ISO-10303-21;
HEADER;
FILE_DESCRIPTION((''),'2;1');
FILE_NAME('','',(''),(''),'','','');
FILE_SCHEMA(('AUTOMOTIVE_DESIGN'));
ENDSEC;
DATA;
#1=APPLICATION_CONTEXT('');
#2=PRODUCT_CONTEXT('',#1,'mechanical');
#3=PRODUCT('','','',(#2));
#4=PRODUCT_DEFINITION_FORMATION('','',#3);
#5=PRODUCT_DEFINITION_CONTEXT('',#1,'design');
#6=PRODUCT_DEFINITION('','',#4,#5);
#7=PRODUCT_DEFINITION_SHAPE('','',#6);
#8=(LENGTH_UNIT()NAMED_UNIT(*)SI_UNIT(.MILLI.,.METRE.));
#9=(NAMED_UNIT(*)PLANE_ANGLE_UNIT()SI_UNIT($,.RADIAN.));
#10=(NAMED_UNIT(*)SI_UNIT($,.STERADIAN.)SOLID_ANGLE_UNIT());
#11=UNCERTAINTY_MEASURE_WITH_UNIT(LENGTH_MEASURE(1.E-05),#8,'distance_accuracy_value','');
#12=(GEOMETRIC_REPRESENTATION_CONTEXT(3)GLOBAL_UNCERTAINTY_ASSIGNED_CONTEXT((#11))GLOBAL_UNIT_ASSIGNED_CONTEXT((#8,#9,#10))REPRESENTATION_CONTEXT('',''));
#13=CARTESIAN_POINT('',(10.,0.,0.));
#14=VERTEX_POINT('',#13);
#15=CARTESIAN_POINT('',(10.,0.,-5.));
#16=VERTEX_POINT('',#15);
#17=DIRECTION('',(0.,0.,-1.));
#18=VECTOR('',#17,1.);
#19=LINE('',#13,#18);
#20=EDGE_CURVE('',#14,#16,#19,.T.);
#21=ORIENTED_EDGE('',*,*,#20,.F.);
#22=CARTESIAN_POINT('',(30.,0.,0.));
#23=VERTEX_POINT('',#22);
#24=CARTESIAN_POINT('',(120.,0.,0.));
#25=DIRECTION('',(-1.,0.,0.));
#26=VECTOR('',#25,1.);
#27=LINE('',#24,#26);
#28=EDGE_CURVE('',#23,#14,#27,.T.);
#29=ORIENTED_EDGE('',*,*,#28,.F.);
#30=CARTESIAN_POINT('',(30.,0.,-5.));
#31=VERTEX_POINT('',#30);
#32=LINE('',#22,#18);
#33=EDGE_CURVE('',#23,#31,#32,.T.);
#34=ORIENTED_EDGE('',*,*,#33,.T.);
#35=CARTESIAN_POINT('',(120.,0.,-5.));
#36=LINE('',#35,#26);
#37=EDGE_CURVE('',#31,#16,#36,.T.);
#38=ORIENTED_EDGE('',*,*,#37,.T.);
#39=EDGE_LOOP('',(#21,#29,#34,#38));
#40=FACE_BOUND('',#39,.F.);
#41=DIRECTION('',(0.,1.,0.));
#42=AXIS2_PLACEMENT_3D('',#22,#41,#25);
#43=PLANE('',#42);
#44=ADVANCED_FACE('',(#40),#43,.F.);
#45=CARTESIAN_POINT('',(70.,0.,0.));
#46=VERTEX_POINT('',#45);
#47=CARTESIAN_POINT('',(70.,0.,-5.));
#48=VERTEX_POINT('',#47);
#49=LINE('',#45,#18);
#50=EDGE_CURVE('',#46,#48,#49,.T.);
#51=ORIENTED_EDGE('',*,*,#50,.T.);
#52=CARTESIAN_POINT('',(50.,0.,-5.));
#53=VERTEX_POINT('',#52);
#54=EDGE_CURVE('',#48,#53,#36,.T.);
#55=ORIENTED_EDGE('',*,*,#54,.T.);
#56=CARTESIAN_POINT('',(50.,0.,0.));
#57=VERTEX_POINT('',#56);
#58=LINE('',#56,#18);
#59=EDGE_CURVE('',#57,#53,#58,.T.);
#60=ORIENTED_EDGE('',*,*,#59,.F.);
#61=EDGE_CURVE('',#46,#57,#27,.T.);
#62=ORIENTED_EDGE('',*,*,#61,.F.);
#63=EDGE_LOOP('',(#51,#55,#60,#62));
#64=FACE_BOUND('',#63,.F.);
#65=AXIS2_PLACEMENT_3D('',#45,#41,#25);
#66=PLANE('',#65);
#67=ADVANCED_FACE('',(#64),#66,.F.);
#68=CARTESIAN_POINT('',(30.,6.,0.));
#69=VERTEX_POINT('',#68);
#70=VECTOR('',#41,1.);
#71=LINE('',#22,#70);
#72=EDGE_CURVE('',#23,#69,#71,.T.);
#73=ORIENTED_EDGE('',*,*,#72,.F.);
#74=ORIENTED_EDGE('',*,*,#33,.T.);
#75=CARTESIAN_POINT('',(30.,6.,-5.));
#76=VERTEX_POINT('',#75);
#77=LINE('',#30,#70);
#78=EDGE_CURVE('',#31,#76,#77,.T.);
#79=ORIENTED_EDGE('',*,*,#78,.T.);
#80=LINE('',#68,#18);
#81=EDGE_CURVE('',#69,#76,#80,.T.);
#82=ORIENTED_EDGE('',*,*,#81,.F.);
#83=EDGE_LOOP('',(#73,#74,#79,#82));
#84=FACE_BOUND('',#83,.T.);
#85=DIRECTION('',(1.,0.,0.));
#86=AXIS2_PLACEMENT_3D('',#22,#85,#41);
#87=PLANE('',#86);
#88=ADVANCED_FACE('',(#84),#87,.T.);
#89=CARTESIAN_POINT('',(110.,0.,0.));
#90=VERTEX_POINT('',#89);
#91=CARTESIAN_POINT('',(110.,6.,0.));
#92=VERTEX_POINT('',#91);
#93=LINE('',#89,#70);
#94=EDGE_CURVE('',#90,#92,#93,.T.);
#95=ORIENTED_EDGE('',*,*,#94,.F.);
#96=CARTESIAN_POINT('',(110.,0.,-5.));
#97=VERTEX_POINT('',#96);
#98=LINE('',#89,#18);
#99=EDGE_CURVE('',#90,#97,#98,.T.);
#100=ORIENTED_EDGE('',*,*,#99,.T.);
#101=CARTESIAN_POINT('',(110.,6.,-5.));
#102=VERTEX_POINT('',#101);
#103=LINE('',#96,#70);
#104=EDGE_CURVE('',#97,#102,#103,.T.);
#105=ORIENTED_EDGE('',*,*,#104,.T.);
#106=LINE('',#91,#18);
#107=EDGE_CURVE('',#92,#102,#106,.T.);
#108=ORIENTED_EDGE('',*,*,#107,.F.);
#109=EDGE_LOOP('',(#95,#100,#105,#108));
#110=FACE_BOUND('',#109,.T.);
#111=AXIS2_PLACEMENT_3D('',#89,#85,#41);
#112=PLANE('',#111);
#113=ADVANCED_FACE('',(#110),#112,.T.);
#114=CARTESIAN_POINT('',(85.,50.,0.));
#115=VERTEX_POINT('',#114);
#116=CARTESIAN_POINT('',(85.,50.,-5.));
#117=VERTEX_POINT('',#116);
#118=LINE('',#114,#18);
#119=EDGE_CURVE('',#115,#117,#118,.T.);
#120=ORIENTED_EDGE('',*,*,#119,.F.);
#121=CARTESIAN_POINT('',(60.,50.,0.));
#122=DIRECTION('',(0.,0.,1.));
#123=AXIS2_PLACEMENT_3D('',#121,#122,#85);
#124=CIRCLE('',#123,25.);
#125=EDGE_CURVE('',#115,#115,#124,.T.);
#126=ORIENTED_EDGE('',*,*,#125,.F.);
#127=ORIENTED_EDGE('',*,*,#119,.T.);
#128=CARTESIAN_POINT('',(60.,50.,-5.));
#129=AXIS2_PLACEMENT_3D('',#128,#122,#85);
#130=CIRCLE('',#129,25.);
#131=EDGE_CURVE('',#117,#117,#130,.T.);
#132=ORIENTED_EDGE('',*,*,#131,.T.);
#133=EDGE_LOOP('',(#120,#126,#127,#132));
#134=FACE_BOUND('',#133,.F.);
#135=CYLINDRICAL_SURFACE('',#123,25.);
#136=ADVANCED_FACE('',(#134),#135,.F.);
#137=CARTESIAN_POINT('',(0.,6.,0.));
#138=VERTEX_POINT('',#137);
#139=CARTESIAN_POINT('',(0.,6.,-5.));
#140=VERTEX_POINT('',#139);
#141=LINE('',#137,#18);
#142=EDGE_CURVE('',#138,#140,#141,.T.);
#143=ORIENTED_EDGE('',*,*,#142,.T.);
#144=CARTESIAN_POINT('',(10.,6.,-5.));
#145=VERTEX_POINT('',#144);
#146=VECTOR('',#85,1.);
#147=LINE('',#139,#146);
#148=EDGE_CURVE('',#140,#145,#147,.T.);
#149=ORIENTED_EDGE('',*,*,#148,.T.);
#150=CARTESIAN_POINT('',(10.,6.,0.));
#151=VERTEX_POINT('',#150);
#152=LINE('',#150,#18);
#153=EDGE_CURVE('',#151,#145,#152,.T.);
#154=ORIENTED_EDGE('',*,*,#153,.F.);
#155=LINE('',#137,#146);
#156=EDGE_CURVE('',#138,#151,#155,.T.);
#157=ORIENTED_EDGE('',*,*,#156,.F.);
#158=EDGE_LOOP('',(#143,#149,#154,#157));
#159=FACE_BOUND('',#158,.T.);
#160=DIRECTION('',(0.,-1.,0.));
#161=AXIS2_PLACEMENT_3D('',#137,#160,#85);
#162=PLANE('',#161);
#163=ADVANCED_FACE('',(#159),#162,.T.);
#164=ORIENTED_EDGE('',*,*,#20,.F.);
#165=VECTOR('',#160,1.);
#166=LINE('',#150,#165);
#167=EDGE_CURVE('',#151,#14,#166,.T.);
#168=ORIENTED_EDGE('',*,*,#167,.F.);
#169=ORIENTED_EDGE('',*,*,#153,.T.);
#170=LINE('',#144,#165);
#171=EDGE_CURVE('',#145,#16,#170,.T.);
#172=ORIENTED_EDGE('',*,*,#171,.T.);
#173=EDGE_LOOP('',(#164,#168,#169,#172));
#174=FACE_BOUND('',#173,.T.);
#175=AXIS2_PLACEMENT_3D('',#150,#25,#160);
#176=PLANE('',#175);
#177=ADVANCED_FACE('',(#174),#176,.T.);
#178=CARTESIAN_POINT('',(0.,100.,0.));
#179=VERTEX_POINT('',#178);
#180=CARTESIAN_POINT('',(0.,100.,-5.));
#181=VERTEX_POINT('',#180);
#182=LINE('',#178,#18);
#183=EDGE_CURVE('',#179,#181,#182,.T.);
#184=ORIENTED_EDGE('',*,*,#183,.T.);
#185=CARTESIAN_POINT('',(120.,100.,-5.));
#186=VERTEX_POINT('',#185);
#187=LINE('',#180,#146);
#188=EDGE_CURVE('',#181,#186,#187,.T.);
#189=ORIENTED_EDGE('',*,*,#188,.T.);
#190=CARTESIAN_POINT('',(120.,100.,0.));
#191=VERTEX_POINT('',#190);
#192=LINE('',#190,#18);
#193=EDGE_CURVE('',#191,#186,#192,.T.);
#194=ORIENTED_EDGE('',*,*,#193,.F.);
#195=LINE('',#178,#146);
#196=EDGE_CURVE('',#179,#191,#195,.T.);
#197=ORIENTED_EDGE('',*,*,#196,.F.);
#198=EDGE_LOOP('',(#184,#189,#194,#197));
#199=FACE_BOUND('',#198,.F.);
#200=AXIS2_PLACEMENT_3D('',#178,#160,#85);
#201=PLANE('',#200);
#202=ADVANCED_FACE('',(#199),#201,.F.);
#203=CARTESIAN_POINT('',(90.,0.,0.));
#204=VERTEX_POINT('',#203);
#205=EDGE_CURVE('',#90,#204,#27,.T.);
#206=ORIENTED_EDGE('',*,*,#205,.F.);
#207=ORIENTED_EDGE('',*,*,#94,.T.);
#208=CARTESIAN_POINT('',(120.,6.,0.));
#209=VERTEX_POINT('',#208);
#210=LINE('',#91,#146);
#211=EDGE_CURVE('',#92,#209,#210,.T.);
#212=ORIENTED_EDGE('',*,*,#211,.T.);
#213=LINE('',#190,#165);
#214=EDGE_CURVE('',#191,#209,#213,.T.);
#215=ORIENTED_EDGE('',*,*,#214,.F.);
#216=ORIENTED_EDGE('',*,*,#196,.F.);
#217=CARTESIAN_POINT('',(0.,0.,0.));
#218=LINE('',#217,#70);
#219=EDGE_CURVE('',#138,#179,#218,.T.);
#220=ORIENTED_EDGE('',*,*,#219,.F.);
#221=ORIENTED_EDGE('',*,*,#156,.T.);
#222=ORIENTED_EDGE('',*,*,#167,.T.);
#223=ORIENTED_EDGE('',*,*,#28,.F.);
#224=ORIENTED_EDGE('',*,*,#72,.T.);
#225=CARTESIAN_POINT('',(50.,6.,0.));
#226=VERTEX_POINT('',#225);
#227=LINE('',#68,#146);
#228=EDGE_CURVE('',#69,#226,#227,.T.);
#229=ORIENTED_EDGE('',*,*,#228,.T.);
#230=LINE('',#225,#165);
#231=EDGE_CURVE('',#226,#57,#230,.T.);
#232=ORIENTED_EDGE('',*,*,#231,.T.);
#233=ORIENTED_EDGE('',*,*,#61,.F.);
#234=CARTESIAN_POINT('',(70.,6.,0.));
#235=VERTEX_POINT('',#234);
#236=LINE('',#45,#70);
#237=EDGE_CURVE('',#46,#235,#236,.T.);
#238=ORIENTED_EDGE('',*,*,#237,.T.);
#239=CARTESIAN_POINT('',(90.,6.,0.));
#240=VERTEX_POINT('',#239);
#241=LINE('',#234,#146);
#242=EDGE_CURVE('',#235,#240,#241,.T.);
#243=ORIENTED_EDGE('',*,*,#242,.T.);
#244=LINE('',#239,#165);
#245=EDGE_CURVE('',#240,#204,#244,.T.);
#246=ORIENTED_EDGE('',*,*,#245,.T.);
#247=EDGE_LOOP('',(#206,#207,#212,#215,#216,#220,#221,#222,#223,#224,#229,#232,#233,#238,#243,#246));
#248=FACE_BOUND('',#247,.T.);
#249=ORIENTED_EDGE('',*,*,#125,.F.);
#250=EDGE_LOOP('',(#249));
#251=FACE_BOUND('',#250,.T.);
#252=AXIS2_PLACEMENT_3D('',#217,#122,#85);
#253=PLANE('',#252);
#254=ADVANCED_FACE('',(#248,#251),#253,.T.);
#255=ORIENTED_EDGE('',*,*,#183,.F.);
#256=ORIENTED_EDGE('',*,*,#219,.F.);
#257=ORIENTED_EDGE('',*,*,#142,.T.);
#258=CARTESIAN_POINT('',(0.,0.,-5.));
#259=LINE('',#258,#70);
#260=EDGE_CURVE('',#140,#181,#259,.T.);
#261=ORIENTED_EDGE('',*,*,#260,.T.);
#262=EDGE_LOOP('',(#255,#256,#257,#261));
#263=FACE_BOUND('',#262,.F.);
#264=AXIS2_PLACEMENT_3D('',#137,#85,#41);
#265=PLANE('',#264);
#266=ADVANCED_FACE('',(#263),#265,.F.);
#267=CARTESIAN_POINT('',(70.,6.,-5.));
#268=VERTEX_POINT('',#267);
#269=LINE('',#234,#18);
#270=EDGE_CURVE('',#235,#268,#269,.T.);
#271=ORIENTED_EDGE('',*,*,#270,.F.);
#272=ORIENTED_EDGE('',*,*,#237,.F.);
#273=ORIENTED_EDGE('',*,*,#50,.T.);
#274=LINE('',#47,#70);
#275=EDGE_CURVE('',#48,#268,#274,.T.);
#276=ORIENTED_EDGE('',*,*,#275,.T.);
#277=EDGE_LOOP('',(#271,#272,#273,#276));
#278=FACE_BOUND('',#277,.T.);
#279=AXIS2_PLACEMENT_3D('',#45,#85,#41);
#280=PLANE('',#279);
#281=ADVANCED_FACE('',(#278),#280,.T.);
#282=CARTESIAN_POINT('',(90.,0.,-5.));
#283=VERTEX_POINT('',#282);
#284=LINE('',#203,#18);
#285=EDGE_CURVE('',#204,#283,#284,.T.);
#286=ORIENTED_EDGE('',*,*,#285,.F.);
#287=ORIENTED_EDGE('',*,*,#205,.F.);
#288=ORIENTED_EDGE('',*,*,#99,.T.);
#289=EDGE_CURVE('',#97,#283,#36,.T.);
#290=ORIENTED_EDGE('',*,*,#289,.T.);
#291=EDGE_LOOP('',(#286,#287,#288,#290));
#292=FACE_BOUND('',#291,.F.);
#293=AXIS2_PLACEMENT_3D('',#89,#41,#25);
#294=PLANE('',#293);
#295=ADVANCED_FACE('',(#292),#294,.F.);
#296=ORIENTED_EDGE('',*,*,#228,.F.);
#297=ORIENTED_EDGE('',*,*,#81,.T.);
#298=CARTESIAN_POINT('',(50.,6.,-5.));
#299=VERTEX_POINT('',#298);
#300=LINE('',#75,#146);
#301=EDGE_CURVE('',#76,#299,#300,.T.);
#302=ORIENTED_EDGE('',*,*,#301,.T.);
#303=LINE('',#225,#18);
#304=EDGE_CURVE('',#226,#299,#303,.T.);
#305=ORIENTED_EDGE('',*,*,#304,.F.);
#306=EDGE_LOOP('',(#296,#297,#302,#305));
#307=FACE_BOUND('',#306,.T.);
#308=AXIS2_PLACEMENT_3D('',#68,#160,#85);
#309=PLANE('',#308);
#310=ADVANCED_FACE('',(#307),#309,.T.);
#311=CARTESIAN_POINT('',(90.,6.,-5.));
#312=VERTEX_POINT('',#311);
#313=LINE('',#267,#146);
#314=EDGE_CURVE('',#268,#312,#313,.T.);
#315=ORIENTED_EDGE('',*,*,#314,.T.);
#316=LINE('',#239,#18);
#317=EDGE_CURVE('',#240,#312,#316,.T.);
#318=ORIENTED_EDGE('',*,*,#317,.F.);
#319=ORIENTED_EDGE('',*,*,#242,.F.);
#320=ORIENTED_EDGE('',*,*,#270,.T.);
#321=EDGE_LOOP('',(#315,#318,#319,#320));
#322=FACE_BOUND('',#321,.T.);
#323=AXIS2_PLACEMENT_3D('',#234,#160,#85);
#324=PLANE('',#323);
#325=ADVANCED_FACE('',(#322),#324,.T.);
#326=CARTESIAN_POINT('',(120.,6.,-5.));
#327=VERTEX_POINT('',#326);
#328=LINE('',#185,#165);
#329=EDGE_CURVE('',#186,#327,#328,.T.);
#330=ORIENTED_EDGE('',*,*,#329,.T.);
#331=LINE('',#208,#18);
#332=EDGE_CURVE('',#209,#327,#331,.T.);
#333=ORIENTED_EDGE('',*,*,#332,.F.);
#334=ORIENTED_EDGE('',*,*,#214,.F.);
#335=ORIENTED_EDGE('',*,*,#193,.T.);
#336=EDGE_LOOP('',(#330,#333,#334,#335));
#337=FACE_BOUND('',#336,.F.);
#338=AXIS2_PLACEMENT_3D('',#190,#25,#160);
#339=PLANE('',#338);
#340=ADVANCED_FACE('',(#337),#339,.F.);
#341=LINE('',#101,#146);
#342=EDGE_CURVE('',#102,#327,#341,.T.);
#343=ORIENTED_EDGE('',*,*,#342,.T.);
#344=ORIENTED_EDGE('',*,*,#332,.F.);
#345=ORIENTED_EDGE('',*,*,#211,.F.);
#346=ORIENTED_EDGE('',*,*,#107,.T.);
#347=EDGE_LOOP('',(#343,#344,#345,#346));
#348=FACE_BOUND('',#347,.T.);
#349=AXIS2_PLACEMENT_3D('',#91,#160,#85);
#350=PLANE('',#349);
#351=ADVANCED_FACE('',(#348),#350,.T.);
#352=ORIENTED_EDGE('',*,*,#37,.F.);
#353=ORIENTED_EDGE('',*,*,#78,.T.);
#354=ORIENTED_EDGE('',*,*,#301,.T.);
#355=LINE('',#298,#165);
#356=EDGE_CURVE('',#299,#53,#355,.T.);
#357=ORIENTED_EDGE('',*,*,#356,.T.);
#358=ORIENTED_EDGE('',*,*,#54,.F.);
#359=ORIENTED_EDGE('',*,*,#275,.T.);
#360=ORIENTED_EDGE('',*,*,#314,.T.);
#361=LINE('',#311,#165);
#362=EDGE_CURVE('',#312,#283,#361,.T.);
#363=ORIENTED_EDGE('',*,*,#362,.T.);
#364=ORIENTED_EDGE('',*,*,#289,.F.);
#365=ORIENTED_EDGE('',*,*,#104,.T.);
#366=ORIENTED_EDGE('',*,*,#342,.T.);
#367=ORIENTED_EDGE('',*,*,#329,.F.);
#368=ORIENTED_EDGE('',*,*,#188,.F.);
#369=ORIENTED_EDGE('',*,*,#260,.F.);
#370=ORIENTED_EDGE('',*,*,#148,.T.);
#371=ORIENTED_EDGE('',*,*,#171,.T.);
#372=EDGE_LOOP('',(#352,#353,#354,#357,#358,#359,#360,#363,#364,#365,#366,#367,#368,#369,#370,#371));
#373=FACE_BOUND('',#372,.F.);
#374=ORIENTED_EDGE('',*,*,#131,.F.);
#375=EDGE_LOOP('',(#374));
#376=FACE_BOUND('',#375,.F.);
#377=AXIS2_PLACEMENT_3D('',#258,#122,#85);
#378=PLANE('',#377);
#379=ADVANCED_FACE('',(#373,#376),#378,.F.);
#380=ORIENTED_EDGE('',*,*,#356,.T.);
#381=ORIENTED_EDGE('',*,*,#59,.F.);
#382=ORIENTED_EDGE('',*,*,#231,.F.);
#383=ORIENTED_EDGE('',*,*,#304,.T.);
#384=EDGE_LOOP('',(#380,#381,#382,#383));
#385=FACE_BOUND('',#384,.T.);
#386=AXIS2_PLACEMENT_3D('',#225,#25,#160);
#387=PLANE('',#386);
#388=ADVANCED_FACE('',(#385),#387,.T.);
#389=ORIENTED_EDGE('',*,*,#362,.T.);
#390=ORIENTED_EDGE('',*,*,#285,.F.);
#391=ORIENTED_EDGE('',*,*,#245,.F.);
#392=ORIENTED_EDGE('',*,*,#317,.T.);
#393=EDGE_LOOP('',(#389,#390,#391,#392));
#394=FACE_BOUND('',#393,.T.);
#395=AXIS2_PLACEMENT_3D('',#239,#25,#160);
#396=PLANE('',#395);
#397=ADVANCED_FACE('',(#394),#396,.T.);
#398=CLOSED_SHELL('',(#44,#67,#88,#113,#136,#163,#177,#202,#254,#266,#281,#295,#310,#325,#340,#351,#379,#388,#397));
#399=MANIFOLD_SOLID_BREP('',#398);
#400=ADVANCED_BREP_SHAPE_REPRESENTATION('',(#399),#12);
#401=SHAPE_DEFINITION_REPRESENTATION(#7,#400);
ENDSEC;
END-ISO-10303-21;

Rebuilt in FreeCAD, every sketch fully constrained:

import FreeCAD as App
import Part
import Sketcher
from FreeCAD import Vector


def add_polygon(sketch, points):
    """Adds a closed chain of lines whose ends are joined by coincident constraints."""
    first, n = sketch.GeometryCount, len(points)
    for a, b in zip(points, points[1:] + points[:1]):
        sketch.addGeometry(Part.LineSegment(App.Vector(*a, 0), App.Vector(*b, 0)), False)
    for i in range(n):
        sketch.addConstraint(Sketcher.Constraint("Coincident", first + i, 2, first + (i + 1) % n, 1))

doc = App.newDocument("Part")
params = doc.addObject("Spreadsheet::Sheet", "Params")
for row, (alias, value) in enumerate([
    ("sketch1_diameter", "50 mm"),
    ("sketch1_width", "10 mm"),
    ("sketch1_width2", "20 mm"),
    ("sketch1_height", "6 mm"),
    ("pad1_length", "5 mm"),
], start=1):
    params.set(f"A{row}", alias)
    params.set(f"B{row}", "=" + value)
    params.setAlias(f"B{row}", alias)

body = doc.addObject("PartDesign::Body", "Body")

sketch1 = body.newObject("Sketcher::SketchObject", "Sketch")
sketch1.AttachmentSupport = (doc.getObject("XY_Plane"), [""])
sketch1.MapMode = "FlatFace"
add_polygon(sketch1, [(0, 100), (0, 6), (10, 6), (10, 0), (30, 0), (30, 6), (50, 6), (50, 0), (70, 0), (70, 6), (90, 6), (90, 0), (110, 0), (110, 6), (120, 6), (120, 100)])
sketch1.addGeometry(Part.Circle(Vector(60, 50, 0), Vector(0, 0, 1), 25), False)
sketch1.addConstraint([
    Sketcher.Constraint("Vertical", 0),
    Sketcher.Constraint("Horizontal", 1),
    Sketcher.Constraint("Vertical", 2),
    Sketcher.Constraint("Horizontal", 3),
    Sketcher.Constraint("Vertical", 4),
    Sketcher.Constraint("Horizontal", 5),
    Sketcher.Constraint("Vertical", 6),
    Sketcher.Constraint("Horizontal", 7),
    Sketcher.Constraint("Vertical", 8),
    Sketcher.Constraint("Horizontal", 9),
    Sketcher.Constraint("Vertical", 10),
    Sketcher.Constraint("Horizontal", 11),
    Sketcher.Constraint("Vertical", 12),
    Sketcher.Constraint("Horizontal", 13),
    Sketcher.Constraint("Vertical", 14),
    Sketcher.Constraint("Horizontal", 15),
    Sketcher.Constraint("PointOnObject", 0, 2, -2),
    Sketcher.Constraint("PointOnObject", 2, 2, -1),
    Sketcher.Constraint("PointOnObject", 6, 2, -1),
    Sketcher.Constraint("PointOnObject", 10, 2, -1),
    Sketcher.Constraint("Horizontal", 1, 2, 4, 2),
    Sketcher.Constraint("Horizontal", 5, 2, 8, 2),
    Sketcher.Constraint("Horizontal", 9, 2, 12, 2),
    Sketcher.Constraint("Equal", 3, 5),
    Sketcher.Constraint("Equal", 5, 7),
    Sketcher.Constraint("Equal", 7, 9),
    Sketcher.Constraint("Equal", 9, 11),
    Sketcher.Constraint("Equal", 1, 13),
    Sketcher.Constraint("Diameter", 16, 50.0),
    Sketcher.Constraint("DistanceX", 1, 1, 1, 2, 10.0),
    Sketcher.Constraint("DistanceX", 3, 1, 3, 2, 20.0),
    Sketcher.Constraint("DistanceY", 2, 2, 2, 1, 6.0),
    Sketcher.Constraint("DistanceX", -1, 1, 16, 3, 60.0),
    Sketcher.Constraint("DistanceY", -1, 1, 16, 3, 50.0),
    Sketcher.Constraint("DistanceY", -1, 1, 14, 2, 100.0),
])
sketch1.setExpression("Constraints[44]", "Params.sketch1_diameter")
sketch1.setExpression("Constraints[45]", "Params.sketch1_width")
sketch1.setExpression("Constraints[46]", "Params.sketch1_width2")
sketch1.setExpression("Constraints[47]", "Params.sketch1_height")
pad1 = body.newObject("PartDesign::Pad", "Pad")
pad1.Profile = sketch1
pad1.setExpression("Length", "Params.pad1_length")
pad1.Reversed = True

doc.recompute()
